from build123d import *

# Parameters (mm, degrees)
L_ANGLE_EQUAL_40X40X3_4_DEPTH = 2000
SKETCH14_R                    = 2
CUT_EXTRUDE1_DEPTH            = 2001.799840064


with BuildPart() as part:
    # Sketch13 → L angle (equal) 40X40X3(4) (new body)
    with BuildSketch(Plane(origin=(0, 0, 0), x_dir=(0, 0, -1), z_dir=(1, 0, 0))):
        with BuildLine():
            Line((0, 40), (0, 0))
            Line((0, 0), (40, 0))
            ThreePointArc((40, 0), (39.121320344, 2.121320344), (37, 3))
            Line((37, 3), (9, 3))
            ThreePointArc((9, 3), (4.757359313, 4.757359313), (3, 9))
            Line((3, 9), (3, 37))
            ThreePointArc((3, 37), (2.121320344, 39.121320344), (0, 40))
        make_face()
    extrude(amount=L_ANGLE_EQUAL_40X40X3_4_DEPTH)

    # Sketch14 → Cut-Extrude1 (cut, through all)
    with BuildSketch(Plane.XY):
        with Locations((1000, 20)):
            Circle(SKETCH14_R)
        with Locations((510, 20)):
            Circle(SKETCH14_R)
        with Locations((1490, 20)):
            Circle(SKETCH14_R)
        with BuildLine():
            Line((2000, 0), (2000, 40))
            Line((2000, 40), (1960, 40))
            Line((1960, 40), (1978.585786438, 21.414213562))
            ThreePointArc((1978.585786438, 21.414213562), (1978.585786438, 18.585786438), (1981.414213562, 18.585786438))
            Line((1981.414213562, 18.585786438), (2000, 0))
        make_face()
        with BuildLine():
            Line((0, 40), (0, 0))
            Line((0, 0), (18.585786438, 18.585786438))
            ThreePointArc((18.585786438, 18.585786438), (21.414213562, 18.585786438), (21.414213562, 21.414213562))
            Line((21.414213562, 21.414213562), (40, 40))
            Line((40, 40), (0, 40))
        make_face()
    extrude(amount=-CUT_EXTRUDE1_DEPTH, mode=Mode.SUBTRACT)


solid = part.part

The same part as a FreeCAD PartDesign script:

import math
import FreeCAD as App
import Part
import Sketcher

V = App.Vector

doc = App.newDocument("Part")
params = doc.addObject("Spreadsheet::Sheet", "Params")
for row, (alias, value) in enumerate([
    ("sketch1_radius", "3 mm"),
    ("sketch1_radius2", "6 mm"),
    ("sketch1_width", "40 mm"),
    ("pad1_length", "2000 mm"),
    ("sketch2_diameter", "4 mm"),
    ("sketch2_width", "40 mm"),
], start=1):
    params.set(f"A{row}", alias)
    params.set(f"B{row}", "=" + value)
    params.setAlias(f"B{row}", alias)

body = doc.addObject("PartDesign::Body", "Body")

sketch1 = doc.addObject("Sketcher::SketchObject", "Sketch")
body.addObject(sketch1)
sketch1.AttachmentSupport = (doc.YZ_Plane, [""])
sketch1.MapMode = "FlatFace"
sketch1.addGeometry(Part.LineSegment(V(40, 0, 0), V(0, 0, 0)), False)
sketch1.addGeometry(Part.LineSegment(V(0, 0, 0), V(0, -40, 0)), False)
sketch1.addGeometry(Part.ArcOfCircle(Part.Circle(V(0, -37, 0), V(0, 0, 1), 3), math.radians(-90), math.radians(0)), False)
sketch1.addGeometry(Part.LineSegment(V(3, -37, 0), V(3, -9, 0)), False)
sketch1.addGeometry(Part.ArcOfCircle(Part.Circle(V(9, -9, 0), V(0, 0, 1), 6), math.radians(90), math.radians(180)), False)
sketch1.addGeometry(Part.LineSegment(V(9, -3, 0), V(37, -3, 0)), False)
sketch1.addGeometry(Part.ArcOfCircle(Part.Circle(V(37, 0, 0), V(0, 0, 1), 3), math.radians(-90), math.radians(0)), False)
sketch1.addConstraint(Sketcher.Constraint("Coincident", 0, 2, 1, 1))
sketch1.addConstraint(Sketcher.Constraint("Coincident", 1, 2, 2, 1))
sketch1.addConstraint(Sketcher.Constraint("Tangent", 2, 2, 3, 1))
sketch1.addConstraint(Sketcher.Constraint("Tangent", 3, 2, 4, 2))
sketch1.addConstraint(Sketcher.Constraint("Tangent", 4, 1, 5, 1))
sketch1.addConstraint(Sketcher.Constraint("Tangent", 5, 2, 6, 1))
sketch1.addConstraint(Sketcher.Constraint("Coincident", 6, 2, 0, 1))
sketch1.addConstraint(Sketcher.Constraint("Horizontal", 0))
sketch1.addConstraint(Sketcher.Constraint("Vertical", 1))
sketch1.addConstraint(Sketcher.Constraint("Vertical", 3))
sketch1.addConstraint(Sketcher.Constraint("Horizontal", 5))
sketch1.addConstraint(Sketcher.Constraint("Coincident", 0, 2, -1, 1))
sketch1.addConstraint(Sketcher.Constraint("Equal", 2, 6))
sketch1.addConstraint(Sketcher.Constraint("PointOnObject", 2, 3, -2))
sketch1.addConstraint(Sketcher.Constraint("PointOnObject", 6, 3, -1))
sketch1.addConstraint(Sketcher.Constraint("Equal", 0, 1))
sketch1.addConstraint(Sketcher.Constraint("Radius", 2, 3.0))
sketch1.addConstraint(Sketcher.Constraint("Radius", 4, 6.0))
sketch1.addConstraint(Sketcher.Constraint("DistanceX", 0, 2, 0, 1, 40.0))
sketch1.setExpression("Constraints[16]", "Params.sketch1_radius")
sketch1.setExpression("Constraints[17]", "Params.sketch1_radius2")
sketch1.setExpression("Constraints[18]", "Params.sketch1_width")
pad1 = doc.addObject("PartDesign::Pad", "Pad")
body.addObject(pad1)
pad1.Profile = sketch1
pad1.setExpression("Length", "Params.pad1_length")

sketch2 = doc.addObject("Sketcher::SketchObject", "Sketch001")
body.addObject(sketch2)
sketch2.AttachmentSupport = (doc.XY_Plane, [""])
sketch2.MapMode = "FlatFace"
sketch2.addGeometry(Part.Circle(V(1000, 20, 0), V(0, 0, 1), 2), False)
sketch2.addGeometry(Part.Circle(V(510, 20, 0), V(0, 0, 1), 2), False)
sketch2.addGeometry(Part.Circle(V(1490, 20, 0), V(0, 0, 1), 2), False)
sketch2.addGeometry(Part.LineSegment(V(2000, 0, 0), V(2000, 40, 0)), False)
sketch2.addGeometry(Part.LineSegment(V(2000, 40, 0), V(1960, 40, 0)), False)
sketch2.addGeometry(Part.LineSegment(V(1960, 40, 0), V(1978.585786, 21.414214, 0)), False)
sketch2.addGeometry(Part.ArcOfCircle(Part.Circle(V(1980, 20, 0), V(0, 0, 1), 2), math.radians(135), math.radians(315)), False)
sketch2.addGeometry(Part.LineSegment(V(1981.414214, 18.585786, 0), V(2000, 0, 0)), False)
sketch2.addGeometry(Part.LineSegment(V(0, 40, 0), V(0, 0, 0)), False)
sketch2.addGeometry(Part.LineSegment(V(0, 0, 0), V(18.585786, 18.585786, 0)), False)
sketch2.addGeometry(Part.ArcOfCircle(Part.Circle(V(20, 20, 0), V(0, 0, 1), 2), math.radians(-135), math.radians(45)), False)
sketch2.addGeometry(Part.LineSegment(V(21.414214, 21.414214, 0), V(40, 40, 0)), False)
sketch2.addGeometry(Part.LineSegment(V(40, 40, 0), V(0, 40, 0)), False)
sketch2.addConstraint(Sketcher.Constraint("Coincident", 3, 2, 4, 1))
sketch2.addConstraint(Sketcher.Constraint("Coincident", 4, 2, 5, 1))
sketch2.addConstraint(Sketcher.Constraint("Coincident", 5, 2, 6, 1))
sketch2.addConstraint(Sketcher.Constraint("Coincident", 6, 2, 7, 1))
sketch2.addConstraint(Sketcher.Constraint("Coincident", 7, 2, 3, 1))
sketch2.addConstraint(Sketcher.Constraint("Coincident", 8, 2, 9, 1))
sketch2.addConstraint(Sketcher.Constraint("Coincident", 9, 2, 10, 1))
sketch2.addConstraint(Sketcher.Constraint("Coincident", 10, 2, 11, 1))
sketch2.addConstraint(Sketcher.Constraint("Coincident", 11, 2, 12, 1))
sketch2.addConstraint(Sketcher.Constraint("Coincident", 12, 2, 8, 1))
sketch2.addConstraint(Sketcher.Constraint("Vertical", 3))
sketch2.addConstraint(Sketcher.Constraint("Horizontal", 4))
sketch2.addConstraint(Sketcher.Constraint("Vertical", 8))
sketch2.addConstraint(Sketcher.Constraint("Horizontal", 12))
sketch2.addConstraint(Sketcher.Constraint("Coincident", 8, 2, -1, 1))
sketch2.addConstraint(Sketcher.Constraint("Equal", 0, 1))
sketch2.addConstraint(Sketcher.Constraint("Equal", 1, 2))
sketch2.addConstraint(Sketcher.Constraint("Equal", 2, 6))
sketch2.addConstraint(Sketcher.Constraint("Equal", 6, 10))
sketch2.addConstraint(Sketcher.Constraint("PointOnObject", 7, 2, -1))
sketch2.addConstraint(Sketcher.Constraint("Parallel", 5, 7))
sketch2.addConstraint(Sketcher.Constraint("Perpendicular", 7, 9))
sketch2.addConstraint(Sketcher.Constraint("Parallel", 9, 11))
sketch2.addConstraint(Sketcher.Constraint("Horizontal", 0, 3, 1, 3))
sketch2.addConstraint(Sketcher.Constraint("Horizontal", 1, 3, 2, 3))
sketch2.addConstraint(Sketcher.Constraint("Horizontal", 2, 3, 6, 3))
sketch2.addConstraint(Sketcher.Constraint("Horizontal", 6, 3, 10, 3))
sketch2.addConstraint(Sketcher.Constraint("Horizontal", 6, 2, 9, 2))
sketch2.addConstraint(Sketcher.Constraint("Horizontal", 5, 2, 10, 2))
sketch2.addConstraint(Sketcher.Constraint("Horizontal", 4, 2, 11, 2))
sketch2.addConstraint(Sketcher.Constraint("Equal", 4, 12))
sketch2.addConstraint(Sketcher.Constraint("Equal", 12, 3))
sketch2.addConstraint(Sketcher.Constraint("Equal", 5, 7))
sketch2.addConstraint(Sketcher.Constraint("Diameter", 0, 4.0))
sketch2.addConstraint(Sketcher.Constraint("DistanceX", 4, 2, 4, 1, 40.0))
sketch2.addConstraint(Sketcher.Constraint("DistanceX", -1, 1, 0, 3, 1000.0))
sketch2.addConstraint(Sketcher.Constraint("DistanceY", -1, 1, 0, 3, 20.0))
sketch2.addConstraint(Sketcher.Constraint("DistanceX", -1, 1, 1, 3, 510.0))
sketch2.addConstraint(Sketcher.Constraint("DistanceX", -1, 1, 2, 3, 1490.0))
sketch2.addConstraint(Sketcher.Constraint("DistanceX", -1, 1, 6, 3, 1980.0))
sketch2.setExpression("Constraints[33]", "Params.sketch2_diameter")
sketch2.setExpression("Constraints[34]", "Params.sketch2_width")
pocket1 = doc.addObject("PartDesign::Pocket", "Pocket")
body.addObject(pocket1)
pocket1.Profile = sketch2
pocket1.Type = "ThroughAll"

doc.recompute()
